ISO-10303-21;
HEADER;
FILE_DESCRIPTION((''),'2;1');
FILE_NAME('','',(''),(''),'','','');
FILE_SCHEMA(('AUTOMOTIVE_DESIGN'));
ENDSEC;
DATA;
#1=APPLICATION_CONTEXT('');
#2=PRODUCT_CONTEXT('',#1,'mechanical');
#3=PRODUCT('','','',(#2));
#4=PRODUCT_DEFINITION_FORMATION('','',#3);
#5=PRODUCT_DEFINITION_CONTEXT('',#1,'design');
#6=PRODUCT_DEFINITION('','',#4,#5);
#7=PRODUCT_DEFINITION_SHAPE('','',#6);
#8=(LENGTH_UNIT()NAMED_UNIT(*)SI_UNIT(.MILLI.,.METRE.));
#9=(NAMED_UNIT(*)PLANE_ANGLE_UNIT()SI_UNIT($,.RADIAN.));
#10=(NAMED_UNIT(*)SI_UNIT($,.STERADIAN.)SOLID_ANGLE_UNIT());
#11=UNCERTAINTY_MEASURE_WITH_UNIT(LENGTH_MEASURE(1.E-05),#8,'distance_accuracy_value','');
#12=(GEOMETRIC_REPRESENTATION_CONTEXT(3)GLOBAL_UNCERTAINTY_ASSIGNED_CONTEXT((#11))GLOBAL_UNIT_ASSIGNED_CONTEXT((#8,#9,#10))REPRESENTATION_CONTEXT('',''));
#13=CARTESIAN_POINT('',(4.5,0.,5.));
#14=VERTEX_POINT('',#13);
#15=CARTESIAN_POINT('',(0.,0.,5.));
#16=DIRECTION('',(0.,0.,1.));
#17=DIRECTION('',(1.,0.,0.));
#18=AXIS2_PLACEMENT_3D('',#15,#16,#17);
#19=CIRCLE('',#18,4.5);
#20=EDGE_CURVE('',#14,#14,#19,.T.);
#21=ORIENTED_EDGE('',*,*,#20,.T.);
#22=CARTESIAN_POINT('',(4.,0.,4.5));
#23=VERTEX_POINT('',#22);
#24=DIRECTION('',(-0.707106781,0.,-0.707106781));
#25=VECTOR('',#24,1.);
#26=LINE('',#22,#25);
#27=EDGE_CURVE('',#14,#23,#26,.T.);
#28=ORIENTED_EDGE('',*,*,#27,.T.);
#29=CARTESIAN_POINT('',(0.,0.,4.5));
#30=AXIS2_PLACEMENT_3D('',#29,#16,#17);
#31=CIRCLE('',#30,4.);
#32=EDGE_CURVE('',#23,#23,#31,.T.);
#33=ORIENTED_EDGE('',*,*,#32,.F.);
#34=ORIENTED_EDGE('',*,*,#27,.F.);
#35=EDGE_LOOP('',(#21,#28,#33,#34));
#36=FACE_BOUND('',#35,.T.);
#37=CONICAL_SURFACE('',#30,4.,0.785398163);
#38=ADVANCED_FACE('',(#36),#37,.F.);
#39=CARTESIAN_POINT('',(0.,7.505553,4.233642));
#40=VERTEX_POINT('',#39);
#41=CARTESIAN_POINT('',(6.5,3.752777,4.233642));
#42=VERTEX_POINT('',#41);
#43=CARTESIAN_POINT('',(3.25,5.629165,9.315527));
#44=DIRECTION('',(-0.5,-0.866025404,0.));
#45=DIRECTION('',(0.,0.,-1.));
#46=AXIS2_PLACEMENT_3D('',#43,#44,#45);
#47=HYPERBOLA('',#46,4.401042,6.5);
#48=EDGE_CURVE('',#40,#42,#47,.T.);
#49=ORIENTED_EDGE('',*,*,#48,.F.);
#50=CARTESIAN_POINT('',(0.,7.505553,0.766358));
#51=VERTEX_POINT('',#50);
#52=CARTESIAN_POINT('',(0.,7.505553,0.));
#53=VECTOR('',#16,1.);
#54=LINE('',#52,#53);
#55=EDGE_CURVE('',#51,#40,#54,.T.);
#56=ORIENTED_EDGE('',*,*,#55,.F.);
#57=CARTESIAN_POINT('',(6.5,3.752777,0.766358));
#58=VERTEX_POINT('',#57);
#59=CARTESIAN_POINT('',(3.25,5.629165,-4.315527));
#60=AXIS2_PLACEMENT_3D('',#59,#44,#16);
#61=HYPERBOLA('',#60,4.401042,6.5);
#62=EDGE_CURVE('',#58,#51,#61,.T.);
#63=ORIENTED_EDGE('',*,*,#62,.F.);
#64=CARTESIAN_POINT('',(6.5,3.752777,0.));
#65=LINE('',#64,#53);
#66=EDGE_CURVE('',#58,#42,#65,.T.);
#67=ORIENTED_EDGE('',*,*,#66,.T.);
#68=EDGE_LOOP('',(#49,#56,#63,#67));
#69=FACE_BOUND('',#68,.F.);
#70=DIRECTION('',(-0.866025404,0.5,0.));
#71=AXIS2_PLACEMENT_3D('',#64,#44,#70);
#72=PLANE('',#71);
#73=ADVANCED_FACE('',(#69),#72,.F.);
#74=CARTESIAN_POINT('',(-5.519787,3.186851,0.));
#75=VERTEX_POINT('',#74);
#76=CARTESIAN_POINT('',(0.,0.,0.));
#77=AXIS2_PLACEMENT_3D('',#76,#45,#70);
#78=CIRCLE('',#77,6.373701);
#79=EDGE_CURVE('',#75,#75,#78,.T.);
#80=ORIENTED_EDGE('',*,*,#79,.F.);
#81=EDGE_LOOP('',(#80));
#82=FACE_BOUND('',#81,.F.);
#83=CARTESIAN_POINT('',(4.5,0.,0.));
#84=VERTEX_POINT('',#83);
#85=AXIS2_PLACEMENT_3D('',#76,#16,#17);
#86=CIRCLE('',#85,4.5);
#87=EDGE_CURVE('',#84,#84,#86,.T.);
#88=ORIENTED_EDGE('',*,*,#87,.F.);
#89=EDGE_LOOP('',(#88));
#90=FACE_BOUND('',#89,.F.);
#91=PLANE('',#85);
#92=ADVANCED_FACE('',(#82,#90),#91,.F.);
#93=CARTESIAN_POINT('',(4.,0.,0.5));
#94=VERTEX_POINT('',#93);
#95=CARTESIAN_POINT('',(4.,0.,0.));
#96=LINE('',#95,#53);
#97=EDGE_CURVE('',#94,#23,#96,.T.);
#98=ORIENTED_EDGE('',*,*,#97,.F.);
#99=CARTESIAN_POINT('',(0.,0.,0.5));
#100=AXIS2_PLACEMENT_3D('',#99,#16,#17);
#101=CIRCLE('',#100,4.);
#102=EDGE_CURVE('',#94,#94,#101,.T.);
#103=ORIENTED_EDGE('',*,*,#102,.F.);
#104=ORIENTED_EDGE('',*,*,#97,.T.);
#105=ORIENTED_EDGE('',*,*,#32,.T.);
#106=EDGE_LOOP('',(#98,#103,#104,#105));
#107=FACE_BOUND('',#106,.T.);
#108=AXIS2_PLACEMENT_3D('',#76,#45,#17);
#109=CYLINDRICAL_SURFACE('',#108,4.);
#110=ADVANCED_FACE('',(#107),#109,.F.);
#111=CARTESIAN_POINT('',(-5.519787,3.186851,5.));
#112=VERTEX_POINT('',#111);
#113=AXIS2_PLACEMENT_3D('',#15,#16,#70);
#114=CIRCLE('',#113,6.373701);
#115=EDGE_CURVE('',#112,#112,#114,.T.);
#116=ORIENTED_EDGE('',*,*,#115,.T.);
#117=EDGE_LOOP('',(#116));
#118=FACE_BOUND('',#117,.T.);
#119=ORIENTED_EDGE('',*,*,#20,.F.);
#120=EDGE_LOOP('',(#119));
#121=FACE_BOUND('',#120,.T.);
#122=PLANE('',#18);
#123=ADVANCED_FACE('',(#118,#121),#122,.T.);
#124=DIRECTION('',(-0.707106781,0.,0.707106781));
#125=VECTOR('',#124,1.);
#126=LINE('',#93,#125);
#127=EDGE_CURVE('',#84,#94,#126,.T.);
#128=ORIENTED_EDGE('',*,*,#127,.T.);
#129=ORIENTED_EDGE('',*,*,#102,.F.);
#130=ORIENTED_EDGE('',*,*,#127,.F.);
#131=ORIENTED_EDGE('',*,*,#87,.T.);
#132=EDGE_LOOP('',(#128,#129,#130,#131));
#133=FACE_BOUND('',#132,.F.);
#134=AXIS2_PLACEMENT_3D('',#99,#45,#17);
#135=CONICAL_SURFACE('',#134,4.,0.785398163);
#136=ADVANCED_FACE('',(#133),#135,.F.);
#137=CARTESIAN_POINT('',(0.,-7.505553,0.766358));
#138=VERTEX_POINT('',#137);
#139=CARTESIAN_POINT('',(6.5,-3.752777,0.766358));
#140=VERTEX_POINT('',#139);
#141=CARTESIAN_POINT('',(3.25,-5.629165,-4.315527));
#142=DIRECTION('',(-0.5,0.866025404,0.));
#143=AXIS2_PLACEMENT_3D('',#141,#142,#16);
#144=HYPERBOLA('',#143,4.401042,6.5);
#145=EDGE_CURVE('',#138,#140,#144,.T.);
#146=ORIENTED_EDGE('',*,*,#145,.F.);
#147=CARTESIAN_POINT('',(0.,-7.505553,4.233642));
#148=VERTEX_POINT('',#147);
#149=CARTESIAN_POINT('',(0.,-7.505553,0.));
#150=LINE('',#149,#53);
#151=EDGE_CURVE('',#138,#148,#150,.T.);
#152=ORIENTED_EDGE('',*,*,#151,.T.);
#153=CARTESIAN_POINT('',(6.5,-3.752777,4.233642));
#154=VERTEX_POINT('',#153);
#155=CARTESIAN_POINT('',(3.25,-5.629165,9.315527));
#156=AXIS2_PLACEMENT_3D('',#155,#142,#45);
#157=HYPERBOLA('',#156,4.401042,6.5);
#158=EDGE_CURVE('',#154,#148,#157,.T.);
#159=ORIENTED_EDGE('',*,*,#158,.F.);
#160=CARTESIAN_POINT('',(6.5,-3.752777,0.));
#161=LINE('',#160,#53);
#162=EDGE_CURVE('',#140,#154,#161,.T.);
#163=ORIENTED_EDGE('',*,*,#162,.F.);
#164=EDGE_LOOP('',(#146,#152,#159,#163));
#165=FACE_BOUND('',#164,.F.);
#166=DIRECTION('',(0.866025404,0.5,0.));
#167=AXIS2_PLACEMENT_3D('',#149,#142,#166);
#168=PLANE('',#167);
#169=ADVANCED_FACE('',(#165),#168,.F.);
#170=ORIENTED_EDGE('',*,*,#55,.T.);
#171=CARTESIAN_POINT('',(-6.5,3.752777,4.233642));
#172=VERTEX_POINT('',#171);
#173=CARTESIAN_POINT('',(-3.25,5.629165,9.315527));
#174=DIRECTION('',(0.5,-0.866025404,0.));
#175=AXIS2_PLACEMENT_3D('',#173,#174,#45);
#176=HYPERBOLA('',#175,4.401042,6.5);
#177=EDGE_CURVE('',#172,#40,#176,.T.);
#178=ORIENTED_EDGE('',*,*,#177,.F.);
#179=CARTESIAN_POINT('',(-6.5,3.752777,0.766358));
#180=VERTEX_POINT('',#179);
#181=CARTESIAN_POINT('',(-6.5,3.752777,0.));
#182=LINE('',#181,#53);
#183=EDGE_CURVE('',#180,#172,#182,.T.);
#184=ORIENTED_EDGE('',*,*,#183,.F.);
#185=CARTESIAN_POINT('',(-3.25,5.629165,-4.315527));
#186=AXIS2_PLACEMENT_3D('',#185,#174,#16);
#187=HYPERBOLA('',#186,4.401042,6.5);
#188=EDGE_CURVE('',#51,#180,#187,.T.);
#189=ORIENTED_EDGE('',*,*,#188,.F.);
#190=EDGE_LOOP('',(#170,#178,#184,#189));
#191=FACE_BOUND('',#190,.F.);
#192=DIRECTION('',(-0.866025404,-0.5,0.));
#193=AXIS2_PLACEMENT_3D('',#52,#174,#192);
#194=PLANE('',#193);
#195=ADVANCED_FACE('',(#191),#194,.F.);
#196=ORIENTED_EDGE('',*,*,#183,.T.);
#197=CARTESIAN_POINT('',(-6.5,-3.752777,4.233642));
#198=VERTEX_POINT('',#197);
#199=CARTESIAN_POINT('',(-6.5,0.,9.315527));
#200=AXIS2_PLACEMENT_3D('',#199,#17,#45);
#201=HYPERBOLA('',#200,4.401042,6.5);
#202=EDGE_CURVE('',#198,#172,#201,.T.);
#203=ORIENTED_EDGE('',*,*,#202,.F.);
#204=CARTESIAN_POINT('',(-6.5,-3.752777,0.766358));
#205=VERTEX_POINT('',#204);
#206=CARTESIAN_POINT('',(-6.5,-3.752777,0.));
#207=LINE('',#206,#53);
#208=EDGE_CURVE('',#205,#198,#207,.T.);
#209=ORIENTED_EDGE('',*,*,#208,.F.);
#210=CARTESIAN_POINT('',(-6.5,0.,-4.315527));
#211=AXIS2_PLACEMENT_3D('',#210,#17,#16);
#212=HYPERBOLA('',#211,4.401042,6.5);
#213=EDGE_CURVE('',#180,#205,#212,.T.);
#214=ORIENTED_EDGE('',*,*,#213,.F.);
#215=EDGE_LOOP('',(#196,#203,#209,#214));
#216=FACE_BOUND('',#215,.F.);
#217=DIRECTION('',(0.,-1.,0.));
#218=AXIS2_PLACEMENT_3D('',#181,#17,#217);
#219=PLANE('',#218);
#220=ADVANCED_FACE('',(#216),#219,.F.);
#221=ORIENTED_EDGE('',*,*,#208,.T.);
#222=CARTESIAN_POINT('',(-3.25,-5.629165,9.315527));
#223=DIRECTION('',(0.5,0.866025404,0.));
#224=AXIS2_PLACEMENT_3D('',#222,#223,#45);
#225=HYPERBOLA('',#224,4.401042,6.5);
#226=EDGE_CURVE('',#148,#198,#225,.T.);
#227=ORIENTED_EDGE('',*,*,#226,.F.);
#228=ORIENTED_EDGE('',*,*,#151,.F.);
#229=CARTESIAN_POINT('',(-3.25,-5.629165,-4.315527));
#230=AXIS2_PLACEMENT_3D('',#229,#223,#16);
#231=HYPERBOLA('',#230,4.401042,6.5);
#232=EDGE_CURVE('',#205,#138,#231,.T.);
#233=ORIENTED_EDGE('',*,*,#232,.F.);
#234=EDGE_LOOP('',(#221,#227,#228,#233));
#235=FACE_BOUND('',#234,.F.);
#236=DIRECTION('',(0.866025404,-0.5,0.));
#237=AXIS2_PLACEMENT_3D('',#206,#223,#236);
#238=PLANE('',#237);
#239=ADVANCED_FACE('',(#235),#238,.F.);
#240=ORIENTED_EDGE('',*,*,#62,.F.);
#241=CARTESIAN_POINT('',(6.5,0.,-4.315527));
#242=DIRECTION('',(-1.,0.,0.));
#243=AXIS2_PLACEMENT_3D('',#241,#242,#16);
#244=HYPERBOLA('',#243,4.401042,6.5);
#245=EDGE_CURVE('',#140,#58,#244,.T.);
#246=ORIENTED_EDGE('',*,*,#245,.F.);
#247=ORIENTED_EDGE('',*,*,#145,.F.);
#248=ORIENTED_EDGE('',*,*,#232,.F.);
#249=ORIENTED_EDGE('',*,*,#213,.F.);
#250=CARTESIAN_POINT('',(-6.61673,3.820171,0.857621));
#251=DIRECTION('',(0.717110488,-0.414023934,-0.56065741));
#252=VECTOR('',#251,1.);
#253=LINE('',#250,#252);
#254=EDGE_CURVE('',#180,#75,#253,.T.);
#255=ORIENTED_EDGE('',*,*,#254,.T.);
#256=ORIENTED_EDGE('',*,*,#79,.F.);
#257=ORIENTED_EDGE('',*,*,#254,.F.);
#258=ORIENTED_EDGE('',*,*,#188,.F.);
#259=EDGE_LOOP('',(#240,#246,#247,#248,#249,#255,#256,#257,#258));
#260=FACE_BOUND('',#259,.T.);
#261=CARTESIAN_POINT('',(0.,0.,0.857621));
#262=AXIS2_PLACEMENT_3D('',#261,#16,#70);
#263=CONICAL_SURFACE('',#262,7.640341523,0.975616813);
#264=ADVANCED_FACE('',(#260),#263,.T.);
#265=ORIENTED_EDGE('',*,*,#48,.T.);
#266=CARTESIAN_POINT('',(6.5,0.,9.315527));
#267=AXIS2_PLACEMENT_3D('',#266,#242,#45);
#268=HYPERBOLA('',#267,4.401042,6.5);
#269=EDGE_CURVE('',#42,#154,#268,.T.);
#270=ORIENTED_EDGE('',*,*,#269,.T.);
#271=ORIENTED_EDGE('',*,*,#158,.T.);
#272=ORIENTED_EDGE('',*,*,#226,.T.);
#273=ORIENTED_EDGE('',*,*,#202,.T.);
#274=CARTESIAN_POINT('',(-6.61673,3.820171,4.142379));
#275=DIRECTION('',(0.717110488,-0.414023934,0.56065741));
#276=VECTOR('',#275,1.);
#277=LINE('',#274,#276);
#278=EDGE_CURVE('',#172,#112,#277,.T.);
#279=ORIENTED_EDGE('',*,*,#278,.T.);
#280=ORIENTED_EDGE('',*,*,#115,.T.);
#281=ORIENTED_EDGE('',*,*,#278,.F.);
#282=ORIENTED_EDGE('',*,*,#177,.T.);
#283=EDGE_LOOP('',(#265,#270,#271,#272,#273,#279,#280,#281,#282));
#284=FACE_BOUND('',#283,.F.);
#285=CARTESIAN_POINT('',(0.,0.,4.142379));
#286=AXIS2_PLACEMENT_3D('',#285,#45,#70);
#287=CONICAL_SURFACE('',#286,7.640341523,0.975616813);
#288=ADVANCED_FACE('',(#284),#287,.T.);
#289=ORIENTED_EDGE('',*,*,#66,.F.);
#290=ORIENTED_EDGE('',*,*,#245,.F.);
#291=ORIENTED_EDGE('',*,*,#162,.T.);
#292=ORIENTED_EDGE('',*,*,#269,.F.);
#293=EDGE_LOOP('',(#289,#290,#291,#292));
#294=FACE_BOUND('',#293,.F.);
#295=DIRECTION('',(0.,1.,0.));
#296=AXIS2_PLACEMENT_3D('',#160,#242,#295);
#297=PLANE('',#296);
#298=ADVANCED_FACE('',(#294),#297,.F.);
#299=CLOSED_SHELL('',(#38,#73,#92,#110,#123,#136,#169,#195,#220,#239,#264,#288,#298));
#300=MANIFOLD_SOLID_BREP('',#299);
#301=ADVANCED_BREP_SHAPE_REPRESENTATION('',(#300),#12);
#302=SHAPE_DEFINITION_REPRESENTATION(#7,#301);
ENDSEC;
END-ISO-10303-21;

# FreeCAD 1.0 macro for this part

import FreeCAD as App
import Part
import Sketcher
from FreeCAD import Vector
Q = App.Units.Quantity


def edges_at(feature, points):
    """Names of the edges that pass closest to the given points."""
    edges = feature.Shape.Edges
    near = lambda p: min(range(len(edges)), key=lambda i: edges[i].distToShape(Part.Vertex(*p))[0])
    return sorted({f"Edge{near(p) + 1}" for p in points})


def add_polygon(sketch, points):
    """Adds a closed chain of lines whose ends are joined by coincident constraints."""
    first, n = sketch.GeometryCount, len(points)
    for a, b in zip(points, points[1:] + points[:1]):
        sketch.addGeometry(Part.LineSegment(App.Vector(*a, 0), App.Vector(*b, 0)), False)
    for i in range(n):
        sketch.addConstraint(Sketcher.Constraint("Coincident", first + i, 2, first + (i + 1) % n, 1))

doc = App.newDocument("Part")
body = doc.addObject("PartDesign::Body", "Body")

# Sketch on XY plane
sketch1 = doc.addObject("Sketcher::SketchObject", "Sketch")
body.addObject(sketch1)
sketch1.AttachmentSupport = (doc.XY_Plane, [""])
sketch1.MapMode = "FlatFace"
add_polygon(sketch1, [(0, 7.5), (-6.5, 3.8), (-6.5, -3.8), (0, -7.5), (6.5, -3.8), (6.5, 3.8)])  # lines 0-5
sketch1.addGeometry(Part.Circle(Vector(0, 0, 0), Vector(0, 0, 1), 4), False)  # 6
sketch1.addConstraint([
    Sketcher.Constraint("Vertical", 1),
    Sketcher.Constraint("Vertical", 4),
    Sketcher.Constraint("Coincident", 6, 3, -1, 1),
    Sketcher.Constraint("Symmetric", 0, 2, 3, 2, -1, 1),
    Sketcher.Constraint("Symmetric", 2, 2, 5, 2, -1, 1),
    Sketcher.Constraint("PointOnObject", 2, 2, -2),
    Sketcher.Constraint("Parallel", 2, 5),
    Sketcher.Constraint("Horizontal", 1, 2, 3, 2),
    Sketcher.Constraint("Diameter", 6, Q("8 mm")),
    Sketcher.Constraint("Angle", 0, Q("-150 deg")),
    Sketcher.Constraint("DistanceX", 1, 2, 3, 2, Q("13 mm")),
    Sketcher.Constraint("DistanceY", 1, 2, 1, 1, Q("7.505554 mm")),
])
pad1 = doc.addObject("PartDesign::Pad", "Pad")
body.addObject(pad1)
pad1.Profile = sketch1
pad1.Length = 5

# Sketch on YZ plane
sketch2 = doc.addObject("Sketcher::SketchObject", "Sketch001")
body.addObject(sketch2)
sketch2.AttachmentSupport = (doc.YZ_Plane, [""])
sketch2.MapMode = "FlatFace"
add_polygon(sketch2, [(5.9, 5.3), (7.6, 4.1), (7.6, 5.3)])  # lines 0-2
sketch2.addConstraint([
    Sketcher.Constraint("Vertical", 1),
    Sketcher.Constraint("Horizontal", 2),
    Sketcher.Constraint("DistanceX", 2, 2, 2, 1, Q("1.70185 mm")),
    Sketcher.Constraint("DistanceY", 1, 1, 1, 2, Q("1.152294 mm")),
    Sketcher.Constraint("DistanceX", -1, 1, 0, 2, Q("7.640342 mm")),
    Sketcher.Constraint("DistanceY", -1, 1, 0, 2, Q("4.142379 mm")),
])
groove = doc.addObject("PartDesign::Groove", "Groove")
body.addObject(groove)
groove.Profile = sketch2
groove.ReferenceAxis = (sketch2, ["V_Axis"])
groove.Angle = 360
doc.recompute()

datumplane = doc.addObject("PartDesign::Plane", "DatumPlane")
body.addObject(datumplane)
datumplane.AttachmentSupport = (doc.XY_Plane, [""])
datumplane.MapMode = "FlatFace"
datumplane.AttachmentOffset = App.Placement(Vector(0, 0, 2.5), App.Rotation())
mirrored = doc.addObject("PartDesign::Mirrored", "Mirrored")
body.addObject(mirrored)
mirrored.Originals = [groove]
mirrored.MirrorPlane = (datumplane, [""])
body.Tip = mirrored
doc.recompute()

chamfer = doc.addObject("PartDesign::Chamfer", "Chamfer")
body.addObject(chamfer)
chamfer.Base = (mirrored, edges_at(mirrored, [(-4, 0, 0), (-4, 0, 5)]))
chamfer.Size = 0.5

doc.recompute()
